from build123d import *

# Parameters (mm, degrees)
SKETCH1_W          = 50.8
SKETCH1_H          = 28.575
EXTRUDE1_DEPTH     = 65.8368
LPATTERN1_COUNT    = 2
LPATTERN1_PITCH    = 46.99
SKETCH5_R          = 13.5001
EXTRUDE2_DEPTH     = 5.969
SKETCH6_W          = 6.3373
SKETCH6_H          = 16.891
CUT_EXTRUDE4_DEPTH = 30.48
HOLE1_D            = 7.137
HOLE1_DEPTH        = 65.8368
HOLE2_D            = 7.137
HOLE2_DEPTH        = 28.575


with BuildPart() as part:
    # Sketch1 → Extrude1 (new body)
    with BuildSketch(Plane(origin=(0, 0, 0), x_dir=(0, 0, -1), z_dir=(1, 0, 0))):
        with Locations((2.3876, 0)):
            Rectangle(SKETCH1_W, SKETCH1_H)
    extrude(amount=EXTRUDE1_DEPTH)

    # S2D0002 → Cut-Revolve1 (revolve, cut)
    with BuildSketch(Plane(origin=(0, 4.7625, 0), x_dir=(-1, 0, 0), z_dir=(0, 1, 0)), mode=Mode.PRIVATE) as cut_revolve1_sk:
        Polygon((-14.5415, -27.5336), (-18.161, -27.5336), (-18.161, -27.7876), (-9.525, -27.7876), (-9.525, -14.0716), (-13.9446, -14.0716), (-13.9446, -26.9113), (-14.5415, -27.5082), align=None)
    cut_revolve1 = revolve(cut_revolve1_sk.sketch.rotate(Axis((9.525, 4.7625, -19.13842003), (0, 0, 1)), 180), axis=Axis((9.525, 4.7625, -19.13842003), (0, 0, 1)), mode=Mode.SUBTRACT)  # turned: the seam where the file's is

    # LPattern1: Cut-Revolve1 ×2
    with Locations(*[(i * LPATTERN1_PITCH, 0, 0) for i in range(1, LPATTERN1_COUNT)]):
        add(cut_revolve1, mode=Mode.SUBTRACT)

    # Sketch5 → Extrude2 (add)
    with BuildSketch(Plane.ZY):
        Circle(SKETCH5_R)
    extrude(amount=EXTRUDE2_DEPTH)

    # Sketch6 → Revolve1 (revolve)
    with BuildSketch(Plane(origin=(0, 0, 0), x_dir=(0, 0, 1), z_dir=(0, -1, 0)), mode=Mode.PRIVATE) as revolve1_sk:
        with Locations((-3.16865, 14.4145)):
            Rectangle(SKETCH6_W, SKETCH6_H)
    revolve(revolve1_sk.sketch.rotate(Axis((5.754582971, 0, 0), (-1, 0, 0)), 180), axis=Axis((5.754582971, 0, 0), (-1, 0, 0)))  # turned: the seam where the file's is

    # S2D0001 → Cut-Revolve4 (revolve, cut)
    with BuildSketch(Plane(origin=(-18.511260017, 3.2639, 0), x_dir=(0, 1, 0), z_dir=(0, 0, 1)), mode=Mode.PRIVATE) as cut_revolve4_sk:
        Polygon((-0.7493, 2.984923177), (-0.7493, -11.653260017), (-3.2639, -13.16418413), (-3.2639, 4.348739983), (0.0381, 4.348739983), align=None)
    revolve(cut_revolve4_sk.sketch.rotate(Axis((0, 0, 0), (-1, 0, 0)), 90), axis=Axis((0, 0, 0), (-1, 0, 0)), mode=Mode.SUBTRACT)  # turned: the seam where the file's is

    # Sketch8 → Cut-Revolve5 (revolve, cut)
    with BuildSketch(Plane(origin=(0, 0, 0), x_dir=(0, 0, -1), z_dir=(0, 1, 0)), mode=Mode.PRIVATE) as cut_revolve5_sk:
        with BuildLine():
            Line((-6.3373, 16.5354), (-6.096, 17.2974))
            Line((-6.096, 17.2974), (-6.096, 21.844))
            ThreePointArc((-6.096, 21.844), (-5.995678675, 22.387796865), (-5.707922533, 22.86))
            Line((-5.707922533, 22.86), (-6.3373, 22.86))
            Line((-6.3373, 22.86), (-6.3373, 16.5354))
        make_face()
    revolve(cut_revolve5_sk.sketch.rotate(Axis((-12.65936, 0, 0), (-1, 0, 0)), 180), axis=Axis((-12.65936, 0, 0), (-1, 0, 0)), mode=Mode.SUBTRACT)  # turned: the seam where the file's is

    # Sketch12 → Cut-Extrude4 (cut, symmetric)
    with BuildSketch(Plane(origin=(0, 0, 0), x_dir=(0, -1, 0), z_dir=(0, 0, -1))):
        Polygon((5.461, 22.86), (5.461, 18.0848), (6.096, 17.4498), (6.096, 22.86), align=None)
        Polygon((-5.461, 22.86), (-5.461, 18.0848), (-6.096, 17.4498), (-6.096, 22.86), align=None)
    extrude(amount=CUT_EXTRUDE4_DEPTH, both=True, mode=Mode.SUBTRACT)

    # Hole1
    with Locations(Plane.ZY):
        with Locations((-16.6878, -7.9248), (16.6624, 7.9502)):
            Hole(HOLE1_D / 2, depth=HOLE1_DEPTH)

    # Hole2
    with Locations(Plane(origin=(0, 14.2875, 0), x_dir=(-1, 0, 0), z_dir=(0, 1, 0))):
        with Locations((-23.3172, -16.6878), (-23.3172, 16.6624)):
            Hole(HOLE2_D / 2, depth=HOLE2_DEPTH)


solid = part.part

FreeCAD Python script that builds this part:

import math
import FreeCAD as App
import Part
import Sketcher
from FreeCAD import Vector
Q = App.Units.Quantity

doc = App.newDocument("Part")
body = doc.addObject("PartDesign::Body", "Body")

sketch1 = doc.addObject("Sketcher::SketchObject", "Sketch")
body.addObject(sketch1)
sketch1.AttachmentSupport = (doc.YZ_Plane, [""])
sketch1.MapMode = "FlatFace"
sketch1.addGeometry(Part.LineSegment(Vector(14, 23, 0), Vector(-14, 23, 0)), False)
sketch1.addGeometry(Part.LineSegment(Vector(-14, 23, 0), Vector(-14, -28, 0)), False)
sketch1.addGeometry(Part.LineSegment(Vector(-14, -28, 0), Vector(14, -28, 0)), False)
sketch1.addGeometry(Part.LineSegment(Vector(14, -28, 0), Vector(14, 23, 0)), False)
sketch1.addConstraint(Sketcher.Constraint("Coincident", 0, 2, 1, 1))
sketch1.addConstraint(Sketcher.Constraint("Coincident", 1, 2, 2, 1))
sketch1.addConstraint(Sketcher.Constraint("Coincident", 2, 2, 3, 1))
sketch1.addConstraint(Sketcher.Constraint("Coincident", 3, 2, 0, 1))
sketch1.addConstraint(Sketcher.Constraint("Horizontal", 0))
sketch1.addConstraint(Sketcher.Constraint("Vertical", 1))
sketch1.addConstraint(Sketcher.Constraint("Horizontal", 2))
sketch1.addConstraint(Sketcher.Constraint("Vertical", 3))
sketch1.addConstraint(Sketcher.Constraint("DistanceY", 1, 2, 1, 1, Q("2 in")))
sketch1.addConstraint(Sketcher.Constraint("DistanceX", 0, 2, 0, 1, Q("1.125 in")))
sketch1.addConstraint(Sketcher.Constraint("DistanceX", 0, 2, -1, 1, Q("0.5625 in")))
sketch1.addConstraint(Sketcher.Constraint("DistanceY", -1, 1, 0, 2, Q("0.906 in")))
pad1 = doc.addObject("PartDesign::Pad", "Pad")
body.addObject(pad1)
pad1.Profile = sketch1
pad1.Length = Q("2.592 in")

sketch2 = doc.addObject("Sketcher::SketchObject", "Sketch001")
body.addObject(sketch2)
sketch2.AttachmentSupport = (doc.XZ_Plane, [""])
sketch2.MapMode = "FlatFace"
sketch2.AttachmentOffset = App.Placement(Vector(0, 0, -0.1875 * 25.4), App.Rotation())
sketch2.addGeometry(Part.LineSegment(Vector(14.541, -27.534, 0), Vector(18.161, -27.534, 0)), False)
sketch2.addGeometry(Part.LineSegment(Vector(18.161, -27.534, 0), Vector(18.161, -27.788, 0)), False)
sketch2.addGeometry(Part.LineSegment(Vector(18.161, -27.788, 0), Vector(9.525, -27.788, 0)), False)
sketch2.addGeometry(Part.LineSegment(Vector(9.525, -27.788, 0), Vector(9.525, -14.072, 0)), False)
sketch2.addGeometry(Part.LineSegment(Vector(9.525, -14.072, 0), Vector(13.945, -14.072, 0)), False)
sketch2.addGeometry(Part.LineSegment(Vector(13.945, -14.072, 0), Vector(13.945, -26.911, 0)), False)
sketch2.addGeometry(Part.LineSegment(Vector(13.945, -26.911, 0), Vector(14.541, -27.508, 0)), False)
sketch2.addGeometry(Part.LineSegment(Vector(14.541, -27.508, 0), Vector(14.541, -27.534, 0)), False)
sketch2.addGeometry(Part.LineSegment(Vector(9.525, -27.788, 0), Vector(9.525, -14.072, 0)), True)
sketch2.addConstraint(Sketcher.Constraint("Coincident", 0, 2, 1, 1))
sketch2.addConstraint(Sketcher.Constraint("Coincident", 1, 2, 2, 1))
sketch2.addConstraint(Sketcher.Constraint("Coincident", 2, 2, 3, 1))
sketch2.addConstraint(Sketcher.Constraint("Coincident", 3, 2, 4, 1))
sketch2.addConstraint(Sketcher.Constraint("Coincident", 4, 2, 5, 1))
sketch2.addConstraint(Sketcher.Constraint("Coincident", 5, 2, 6, 1))
sketch2.addConstraint(Sketcher.Constraint("Coincident", 6, 2, 7, 1))
sketch2.addConstraint(Sketcher.Constraint("Coincident", 7, 2, 0, 1))
sketch2.addConstraint(Sketcher.Constraint("Horizontal", 0))
sketch2.addConstraint(Sketcher.Constraint("Vertical", 1))
sketch2.addConstraint(Sketcher.Constraint("Horizontal", 2))
sketch2.addConstraint(Sketcher.Constraint("Vertical", 3))
sketch2.addConstraint(Sketcher.Constraint("Horizontal", 4))
sketch2.addConstraint(Sketcher.Constraint("Vertical", 5))
sketch2.addConstraint(Sketcher.Constraint("Vertical", 7))
sketch2.addConstraint(Sketcher.Constraint("Vertical", 8))
sketch2.addConstraint(Sketcher.Constraint("Coincident", 8, 1, 2, 2))
sketch2.addConstraint(Sketcher.Constraint("Horizontal", 4, 2, 8, 2))
sketch2.addConstraint(Sketcher.Constraint("Angle", 6, Q("-45 deg")))
sketch2.addConstraint(Sketcher.Constraint("DistanceX", 2, 2, 2, 1, Q("0.34 in")))
sketch2.addConstraint(Sketcher.Constraint("DistanceY", 1, 2, 1, 1, Q("0.01 in")))
sketch2.addConstraint(Sketcher.Constraint("DistanceY", 3, 1, 3, 2, Q("0.54 in")))
sketch2.addConstraint(Sketcher.Constraint("DistanceX", 4, 1, 4, 2, Q("0.174 in")))
sketch2.addConstraint(Sketcher.Constraint("DistanceY", 7, 2, 7, 1, Q("0.001 in")))
sketch2.addConstraint(Sketcher.Constraint("DistanceX", 0, 1, 0, 2, Q("0.1425 in")))
sketch2.addConstraint(Sketcher.Constraint("DistanceX", -1, 1, 0, 2, Q("0.715 in")))
sketch2.addConstraint(Sketcher.Constraint("DistanceY", 0, 2, -1, 1, Q("1.084 in")))
groove = doc.addObject("PartDesign::Groove", "Groove")
body.addObject(groove)
groove.Profile = sketch2
groove.ReferenceAxis = (sketch2, ["Axis0"])
groove.Angle = 360
doc.recompute()

linearpattern = doc.addObject("PartDesign::LinearPattern", "LinearPattern")
body.addObject(linearpattern)
linearpattern.Originals = [groove]
linearpattern.Direction = (doc.X_Axis, [""])
linearpattern.Mode = "offset"
linearpattern.Offset = Q("1.85 in")
linearpattern.Occurrences = 2
body.Tip = linearpattern

sketch3 = doc.addObject("Sketcher::SketchObject", "Sketch002")
body.addObject(sketch3)
sketch3.AttachmentSupport = (doc.YZ_Plane, [""])
sketch3.MapMode = "FlatFace"
sketch3.addGeometry(Part.Circle(Vector(0, 0, 0), Vector(0, 0, 1), 14), False)
sketch3.addConstraint(Sketcher.Constraint("Coincident", 0, 3, -1, 1))
sketch3.addConstraint(Sketcher.Constraint("Diameter", 0, Q("1.063 in")))
pad2 = doc.addObject("PartDesign::Pad", "Pad001")
body.addObject(pad2)
pad2.Profile = sketch3
pad2.Length = Q("0.235 in")
pad2.Reversed = True

sketch4 = doc.addObject("Sketcher::SketchObject", "Sketch003")
body.addObject(sketch4)
sketch4.AttachmentSupport = (doc.XZ_Plane, [""])
sketch4.MapMode = "FlatFace"
sketch4.addGeometry(Part.LineSegment(Vector(-23, -6, 0), Vector(-6, -6, 0)), False)
sketch4.addGeometry(Part.LineSegment(Vector(-6, -6, 0), Vector(-6, 0, 0)), False)
sketch4.addGeometry(Part.LineSegment(Vector(-6, 0, 0), Vector(-23, 0, 0)), False)
sketch4.addGeometry(Part.LineSegment(Vector(-23, 0, 0), Vector(-23, -6, 0)), False)
sketch4.addConstraint(Sketcher.Constraint("Coincident", 0, 2, 1, 1))
sketch4.addConstraint(Sketcher.Constraint("Coincident", 1, 2, 2, 1))
sketch4.addConstraint(Sketcher.Constraint("Coincident", 2, 2, 3, 1))
sketch4.addConstraint(Sketcher.Constraint("Coincident", 3, 2, 0, 1))
sketch4.addConstraint(Sketcher.Constraint("Horizontal", 0))
sketch4.addConstraint(Sketcher.Constraint("Vertical", 1))
sketch4.addConstraint(Sketcher.Constraint("Horizontal", 2))
sketch4.addConstraint(Sketcher.Constraint("Vertical", 3))
sketch4.addConstraint(Sketcher.Constraint("PointOnObject", 1, 2, -1))
sketch4.addConstraint(Sketcher.Constraint("DistanceX", 2, 2, -1, 1, Q("0.9 in")))
sketch4.addConstraint(Sketcher.Constraint("DistanceX", 0, 1, 0, 2, Q("0.665 in")))
sketch4.addConstraint(Sketcher.Constraint("DistanceY", 1, 1, 1, 2, Q("0.2495 in")))
revolution = doc.addObject("PartDesign::Revolution", "Revolution")
body.addObject(revolution)
revolution.Profile = sketch4
revolution.ReferenceAxis = (sketch4, ["H_Axis"])
revolution.Angle = 360

sketch5 = doc.addObject("Sketcher::SketchObject", "Sketch004")
body.addObject(sketch5)
sketch5.AttachmentSupport = (doc.XY_Plane, [""])
sketch5.MapMode = "FlatFace"
sketch5.addGeometry(Part.LineSegment(Vector(-6.9, 2.5, 0), Vector(-21.5, 2.5, 0)), False)
sketch5.addGeometry(Part.LineSegment(Vector(-21.5, 2.5, 0), Vector(-22.9, 3.3, 0)), False)
sketch5.addGeometry(Part.LineSegment(Vector(-22.9, 3.3, 0), Vector(-22.9, 0, 0)), False)
sketch5.addGeometry(Part.LineSegment(Vector(-22.9, 0, 0), Vector(-5.3, 0, 0)), False)
sketch5.addGeometry(Part.LineSegment(Vector(-5.3, 0, 0), Vector(-6.9, 2.5, 0)), False)
sketch5.addConstraint(Sketcher.Constraint("Coincident", 0, 2, 1, 1))
sketch5.addConstraint(Sketcher.Constraint("Coincident", 1, 2, 2, 1))
sketch5.addConstraint(Sketcher.Constraint("Coincident", 2, 2, 3, 1))
sketch5.addConstraint(Sketcher.Constraint("Coincident", 3, 2, 4, 1))
sketch5.addConstraint(Sketcher.Constraint("Coincident", 4, 2, 0, 1))
sketch5.addConstraint(Sketcher.Constraint("Horizontal", 0))
sketch5.addConstraint(Sketcher.Constraint("Vertical", 2))
sketch5.addConstraint(Sketcher.Constraint("Horizontal", 3))
sketch5.addConstraint(Sketcher.Constraint("PointOnObject", 2, 2, -1))
sketch5.addConstraint(Sketcher.Constraint("Angle", 1, Q("150 deg")))
sketch5.addConstraint(Sketcher.Constraint("Angle", 4, Q("121 deg")))
sketch5.addConstraint(Sketcher.Constraint("DistanceY", 2, 2, 2, 1, Q("0.13 in")))
sketch5.addConstraint(Sketcher.Constraint("DistanceX", 1, 2, -1, 1, Q("0.9 in")))
sketch5.addConstraint(Sketcher.Constraint("DistanceX", 4, 2, -1, 1, Q("0.27 in")))
sketch5.addConstraint(Sketcher.Constraint("Distance", 1, Q("0.062 in")))
groove2 = doc.addObject("PartDesign::Groove", "Groove001")
body.addObject(groove2)
groove2.Profile = sketch5
groove2.ReferenceAxis = (sketch5, ["H_Axis"])
groove2.Angle = 360

sketch6 = doc.addObject("Sketcher::SketchObject", "Sketch005")
body.addObject(sketch6)
sketch6.AttachmentSupport = (doc.XZ_Plane, [""])
sketch6.MapMode = "FlatFace"
sketch6.addGeometry(Part.LineSegment(Vector(-16.5, 6.3, 0), Vector(-17.3, 6.1, 0)), False)
sketch6.addGeometry(Part.LineSegment(Vector(-17.3, 6.1, 0), Vector(-21.8, 6.1, 0)), False)
sketch6.addGeometry(Part.ArcOfCircle(Part.Circle(Vector(-21.8, 4.6, 0), Vector(0, 0, 1), 1.5), math.radians(90), math.radians(132)), False)
sketch6.addGeometry(Part.LineSegment(Vector(-22.9, 5.7, 0), Vector(-22.9, 6.3, 0)), False)
sketch6.addGeometry(Part.LineSegment(Vector(-22.9, 6.3, 0), Vector(-16.5, 6.3, 0)), False)
sketch6.addConstraint(Sketcher.Constraint("Coincident", 0, 2, 1, 1))
sketch6.addConstraint(Sketcher.Constraint("Tangent", 1, 2, 2, 1))
sketch6.addConstraint(Sketcher.Constraint("Coincident", 2, 2, 3, 1))
sketch6.addConstraint(Sketcher.Constraint("Coincident", 3, 2, 4, 1))
sketch6.addConstraint(Sketcher.Constraint("Coincident", 4, 2, 0, 1))
sketch6.addConstraint(Sketcher.Constraint("Horizontal", 1))
sketch6.addConstraint(Sketcher.Constraint("Vertical", 3))
sketch6.addConstraint(Sketcher.Constraint("Horizontal", 4))
sketch6.addConstraint(Sketcher.Constraint("Radius", 2, Q("0.06 in")))
sketch6.addConstraint(Sketcher.Constraint("DistanceX", 2, 2, -1, 1, Q("0.9 in")))
sketch6.addConstraint(Sketcher.Constraint("DistanceX", 1, 2, 1, 1, Q("0.179 in")))
sketch6.addConstraint(Sketcher.Constraint("DistanceX", 4, 1, 4, 2, Q("0.249 in")))
sketch6.addConstraint(Sketcher.Constraint("DistanceX", 2, 3, -1, 1, Q("0.86 in")))
sketch6.addConstraint(Sketcher.Constraint("DistanceY", -1, 1, 2, 3, Q("0.18 in")))
sketch6.addConstraint(Sketcher.Constraint("DistanceY", -1, 1, 3, 2, Q("0.2495 in")))
groove3 = doc.addObject("PartDesign::Groove", "Groove002")
body.addObject(groove3)
groove3.Profile = sketch6
groove3.ReferenceAxis = (sketch6, ["H_Axis"])
groove3.Angle = 360

sketch7 = doc.addObject("Sketcher::SketchObject", "Sketch006")
body.addObject(sketch7)
sketch7.AttachmentSupport = (doc.XY_Plane, [""])
sketch7.MapMode = "FlatFace"
sketch7.addGeometry(Part.LineSegment(Vector(-22.9, -5.5, 0), Vector(-18.1, -5.5, 0)), False)
sketch7.addGeometry(Part.LineSegment(Vector(-18.1, -5.5, 0), Vector(-17.4, -6.1, 0)), False)
sketch7.addGeometry(Part.LineSegment(Vector(-17.4, -6.1, 0), Vector(-22.9, -6.1, 0)), False)
sketch7.addGeometry(Part.LineSegment(Vector(-22.9, -6.1, 0), Vector(-22.9, -5.5, 0)), False)
sketch7.addGeometry(Part.LineSegment(Vector(-18.1, 5.5, 0), Vector(-22.9, 5.5, 0)), False)
sketch7.addGeometry(Part.LineSegment(Vector(-22.9, 5.5, 0), Vector(-22.9, 6.1, 0)), False)
sketch7.addGeometry(Part.LineSegment(Vector(-22.9, 6.1, 0), Vector(-17.4, 6.1, 0)), False)
sketch7.addGeometry(Part.LineSegment(Vector(-17.4, 6.1, 0), Vector(-18.1, 5.5, 0)), False)
sketch7.addConstraint(Sketcher.Constraint("Coincident", 0, 2, 1, 1))
sketch7.addConstraint(Sketcher.Constraint("Coincident", 1, 2, 2, 1))
sketch7.addConstraint(Sketcher.Constraint("Coincident", 2, 2, 3, 1))
sketch7.addConstraint(Sketcher.Constraint("Coincident", 3, 2, 0, 1))
sketch7.addConstraint(Sketcher.Constraint("Coincident", 4, 2, 5, 1))
sketch7.addConstraint(Sketcher.Constraint("Coincident", 5, 2, 6, 1))
sketch7.addConstraint(Sketcher.Constraint("Coincident", 6, 2, 7, 1))
sketch7.addConstraint(Sketcher.Constraint("Coincident", 7, 2, 4, 1))
sketch7.addConstraint(Sketcher.Constraint("Horizontal", 0))
sketch7.addConstraint(Sketcher.Constraint("Horizontal", 2))
sketch7.addConstraint(Sketcher.Constraint("Vertical", 3))
sketch7.addConstraint(Sketcher.Constraint("Horizontal", 4))
sketch7.addConstraint(Sketcher.Constraint("Vertical", 5))
sketch7.addConstraint(Sketcher.Constraint("Horizontal", 6))
sketch7.addConstraint(Sketcher.Constraint("Symmetric", 3, 2, 4, 2, -1))
sketch7.addConstraint(Sketcher.Constraint("Symmetric", 1, 2, 6, 2, -1))
sketch7.addConstraint(Sketcher.Constraint("Perpendicular", 1, 7))
sketch7.addConstraint(Sketcher.Constraint("Vertical", 0, 2, 7, 2))
sketch7.addConstraint(Sketcher.Constraint("DistanceX", 2, 2, -1, 1, Q("0.9 in")))
sketch7.addConstraint(Sketcher.Constraint("DistanceX", 0, 1, 0, 2, Q("0.188 in")))
sketch7.addConstraint(Sketcher.Constraint("DistanceX", 2, 2, 2, 1, Q("0.213 in")))
sketch7.addConstraint(Sketcher.Constraint("DistanceY", 1, 2, -1, 1, Q("0.24 in")))
pocket1 = doc.addObject("PartDesign::Pocket", "Pocket")
body.addObject(pocket1)
pocket1.Profile = sketch7
pocket1.Length = Q("2.4 in")
pocket1.Midplane = True

sketch8 = doc.addObject("Sketcher::SketchObject", "Sketch007")
body.addObject(sketch8)
sketch8.AttachmentSupport = (doc.YZ_Plane, [""])
sketch8.MapMode = "FlatFace"
sketch8.addGeometry(Part.Circle(Vector(-7.9, -16.7, 0), Vector(0, 0, 1), 3.6), False)
sketch8.addGeometry(Part.Circle(Vector(8, 16.7, 0), Vector(0, 0, 1), 3.6), False)
sketch8.addConstraint(Sketcher.Constraint("Equal", 0, 1))
sketch8.addConstraint(Sketcher.Constraint("Diameter", 0, 7.137))
sketch8.addConstraint(Sketcher.Constraint("DistanceX", 0, 3, -1, 1, Q("0.312 in")))
sketch8.addConstraint(Sketcher.Constraint("DistanceY", 0, 3, -1, 1, Q("0.657 in")))
sketch8.addConstraint(Sketcher.Constraint("DistanceX", -1, 1, 1, 3, Q("0.313 in")))
sketch8.addConstraint(Sketcher.Constraint("DistanceY", -1, 1, 1, 3, Q("0.656 in")))
doc.recompute()
hole = doc.addObject("PartDesign::Hole", "Hole")
body.addObject(hole)
hole.Profile = sketch8
hole.ThreadType = "None"
hole.Diameter = 7.137
hole.DepthType = "Dimension"
hole.Depth = Q("2.592 in")
hole.DrillPoint = "Flat"
hole.Reversed = True

sketch9 = doc.addObject("Sketcher::SketchObject", "Sketch008")
body.addObject(sketch9)
sketch9.AttachmentSupport = (doc.XZ_Plane, [""])
sketch9.MapMode = "FlatFace"
sketch9.AttachmentOffset = App.Placement(Vector(0, 0, -0.5625 * 25.4), App.Rotation())
sketch9.addGeometry(Part.Circle(Vector(23.3, -16.7, 0), Vector(0, 0, 1), 3.6), False)
sketch9.addGeometry(Part.Circle(Vector(23.3, 16.7, 0), Vector(0, 0, 1), 3.6), False)
sketch9.addConstraint(Sketcher.Constraint("Equal", 0, 1))
sketch9.addConstraint(Sketcher.Constraint("Vertical", 0, 3, 1, 3))
sketch9.addConstraint(Sketcher.Constraint("Diameter", 0, 7.137))
sketch9.addConstraint(Sketcher.Constraint("DistanceX", -1, 1, 0, 3, Q("0.918 in")))
sketch9.addConstraint(Sketcher.Constraint("DistanceY", 0, 3, -1, 1, Q("0.657 in")))
sketch9.addConstraint(Sketcher.Constraint("DistanceY", -1, 1, 1, 3, Q("0.656 in")))
doc.recompute()
hole2 = doc.addObject("PartDesign::Hole", "Hole001")
body.addObject(hole2)
hole2.Profile = sketch9
hole2.ThreadType = "None"
hole2.Diameter = 7.137
hole2.DepthType = "Dimension"
hole2.Depth = Q("1.125 in")
hole2.DrillPoint = "Flat"
hole2.Reversed = True

doc.recompute()
